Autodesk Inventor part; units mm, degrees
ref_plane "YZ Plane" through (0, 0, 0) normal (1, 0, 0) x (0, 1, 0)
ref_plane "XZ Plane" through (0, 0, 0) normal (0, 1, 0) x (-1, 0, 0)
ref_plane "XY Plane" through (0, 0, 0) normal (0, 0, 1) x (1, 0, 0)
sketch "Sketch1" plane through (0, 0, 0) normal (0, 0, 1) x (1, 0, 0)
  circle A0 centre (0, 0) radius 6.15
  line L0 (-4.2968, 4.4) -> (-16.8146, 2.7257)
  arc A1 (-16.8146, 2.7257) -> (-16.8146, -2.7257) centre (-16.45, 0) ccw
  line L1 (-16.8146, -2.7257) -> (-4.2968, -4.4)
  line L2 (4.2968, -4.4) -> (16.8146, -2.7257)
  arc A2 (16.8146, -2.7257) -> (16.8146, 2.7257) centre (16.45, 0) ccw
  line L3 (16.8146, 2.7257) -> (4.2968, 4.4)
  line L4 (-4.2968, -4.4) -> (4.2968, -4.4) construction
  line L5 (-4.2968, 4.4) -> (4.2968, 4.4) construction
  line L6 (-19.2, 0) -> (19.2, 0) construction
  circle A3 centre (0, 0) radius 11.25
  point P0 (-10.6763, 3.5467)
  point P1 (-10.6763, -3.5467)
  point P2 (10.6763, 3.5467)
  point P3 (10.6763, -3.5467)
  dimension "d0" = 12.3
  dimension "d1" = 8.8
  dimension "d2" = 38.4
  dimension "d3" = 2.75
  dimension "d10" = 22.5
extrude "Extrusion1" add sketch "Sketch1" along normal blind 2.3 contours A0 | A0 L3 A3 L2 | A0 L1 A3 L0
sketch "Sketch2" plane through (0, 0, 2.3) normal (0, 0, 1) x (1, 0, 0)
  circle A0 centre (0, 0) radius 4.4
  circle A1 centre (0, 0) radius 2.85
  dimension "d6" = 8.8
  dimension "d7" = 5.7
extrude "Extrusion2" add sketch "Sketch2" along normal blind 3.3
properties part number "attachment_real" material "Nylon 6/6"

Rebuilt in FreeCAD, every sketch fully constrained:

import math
import FreeCAD as App
import Part
import Sketcher
from FreeCAD import Vector

doc = App.newDocument("Part")
body = doc.addObject("PartDesign::Body", "Body")

# Sketch on XY plane
sketch1 = body.newObject("Sketcher::SketchObject", "Sketch")
sketch1.AttachmentSupport = (doc.getObject("XY_Plane"), [""])
sketch1.MapMode = "FlatFace"
sketch1.addGeometry([
    Part.ArcOfCircle(Part.Circle(Vector(0, 0, 0), Vector(0, 0, 1), 6), math.radians(-134), math.radians(-46)),  # 0
    Part.LineSegment(Vector(4, -4, 0), Vector(11, -4, 0)),  # 1
    Part.ArcOfCircle(Part.Circle(Vector(0, 0, 0), Vector(0, 0, 1), 11), math.radians(-18), math.radians(18)),  # 2
    Part.LineSegment(Vector(11, 4, 0), Vector(4, 4, 0)),  # 3
    Part.ArcOfCircle(Part.Circle(Vector(0, 0, 0), Vector(0, 0, 1), 6), math.radians(46), math.radians(134)),  # 4
    Part.LineSegment(Vector(-4, 4, 0), Vector(-11, 4, 0)),  # 5
    Part.ArcOfCircle(Part.Circle(Vector(0, 0, 0), Vector(0, 0, 1), 11), math.radians(162), math.radians(198)),  # 6
    Part.LineSegment(Vector(-11, -4, 0), Vector(-4, -4, 0)),  # 7
], False)
sketch1.addConstraint([
    Sketcher.Constraint("Coincident", 0, 2, 1, 1),
    Sketcher.Constraint("Coincident", 1, 2, 2, 1),
    Sketcher.Constraint("Coincident", 2, 2, 3, 1),
    Sketcher.Constraint("Coincident", 3, 2, 4, 1),
    Sketcher.Constraint("Coincident", 4, 2, 5, 1),
    Sketcher.Constraint("Coincident", 5, 2, 6, 1),
    Sketcher.Constraint("Coincident", 6, 2, 7, 1),
    Sketcher.Constraint("Coincident", 7, 2, 0, 1),
    Sketcher.Constraint("Coincident", 0, 3, -1, 1),
    Sketcher.Constraint("Coincident", 2, 3, -1, 1),
    Sketcher.Constraint("Coincident", 4, 3, -1, 1),
    Sketcher.Constraint("Coincident", 6, 3, -1, 1),
    Sketcher.Constraint("Equal", 0, 4),
    Sketcher.Constraint("Equal", 2, 6),
    Sketcher.Constraint("Parallel", 1, 5),
    Sketcher.Constraint("Parallel", 3, 7),
    Sketcher.Constraint("Horizontal", 3, 2, 4, 2),
    Sketcher.Constraint("Horizontal", 2, 2, 5, 2),
    Sketcher.Constraint("Horizontal", 1, 2, 6, 2),
    Sketcher.Constraint("Vertical", 1, 2, 2, 2),
    Sketcher.Constraint("Radius", 0, 6.15),
    Sketcher.Constraint("Radius", 2, 11.25),
    Sketcher.Constraint("DistanceY", 0, 2, -1, 1, 4.4),
    Sketcher.Constraint("Distance", 1, 6.4363),
])
pad1 = body.newObject("PartDesign::Pad", "Pad")
pad1.Profile = sketch1
pad1.Length = 2.3

# Sketch on XY plane
sketch2 = body.newObject("Sketcher::SketchObject", "Sketch001")
sketch2.AttachmentSupport = (doc.getObject("XY_Plane"), [""])
sketch2.MapMode = "FlatFace"
sketch2.AttachmentOffset = App.Placement(Vector(0, 0, 2.3), App.Rotation())
sketch2.addGeometry([
    Part.Circle(Vector(0, 0, 0), Vector(0, 0, 1), 4.4),
    Part.Circle(Vector(0, 0, 0), Vector(0, 0, 1), 2.9),
], False)
sketch2.addConstraint([
    Sketcher.Constraint("Coincident", 0, 3, -1, 1),
    Sketcher.Constraint("Coincident", 1, 3, -1, 1),
    Sketcher.Constraint("Diameter", 0, 8.8),
    Sketcher.Constraint("Diameter", 1, 5.7),
])
pad2 = body.newObject("PartDesign::Pad", "Pad001")
pad2.Profile = sketch2
pad2.Length = 3.3

doc.recompute()
